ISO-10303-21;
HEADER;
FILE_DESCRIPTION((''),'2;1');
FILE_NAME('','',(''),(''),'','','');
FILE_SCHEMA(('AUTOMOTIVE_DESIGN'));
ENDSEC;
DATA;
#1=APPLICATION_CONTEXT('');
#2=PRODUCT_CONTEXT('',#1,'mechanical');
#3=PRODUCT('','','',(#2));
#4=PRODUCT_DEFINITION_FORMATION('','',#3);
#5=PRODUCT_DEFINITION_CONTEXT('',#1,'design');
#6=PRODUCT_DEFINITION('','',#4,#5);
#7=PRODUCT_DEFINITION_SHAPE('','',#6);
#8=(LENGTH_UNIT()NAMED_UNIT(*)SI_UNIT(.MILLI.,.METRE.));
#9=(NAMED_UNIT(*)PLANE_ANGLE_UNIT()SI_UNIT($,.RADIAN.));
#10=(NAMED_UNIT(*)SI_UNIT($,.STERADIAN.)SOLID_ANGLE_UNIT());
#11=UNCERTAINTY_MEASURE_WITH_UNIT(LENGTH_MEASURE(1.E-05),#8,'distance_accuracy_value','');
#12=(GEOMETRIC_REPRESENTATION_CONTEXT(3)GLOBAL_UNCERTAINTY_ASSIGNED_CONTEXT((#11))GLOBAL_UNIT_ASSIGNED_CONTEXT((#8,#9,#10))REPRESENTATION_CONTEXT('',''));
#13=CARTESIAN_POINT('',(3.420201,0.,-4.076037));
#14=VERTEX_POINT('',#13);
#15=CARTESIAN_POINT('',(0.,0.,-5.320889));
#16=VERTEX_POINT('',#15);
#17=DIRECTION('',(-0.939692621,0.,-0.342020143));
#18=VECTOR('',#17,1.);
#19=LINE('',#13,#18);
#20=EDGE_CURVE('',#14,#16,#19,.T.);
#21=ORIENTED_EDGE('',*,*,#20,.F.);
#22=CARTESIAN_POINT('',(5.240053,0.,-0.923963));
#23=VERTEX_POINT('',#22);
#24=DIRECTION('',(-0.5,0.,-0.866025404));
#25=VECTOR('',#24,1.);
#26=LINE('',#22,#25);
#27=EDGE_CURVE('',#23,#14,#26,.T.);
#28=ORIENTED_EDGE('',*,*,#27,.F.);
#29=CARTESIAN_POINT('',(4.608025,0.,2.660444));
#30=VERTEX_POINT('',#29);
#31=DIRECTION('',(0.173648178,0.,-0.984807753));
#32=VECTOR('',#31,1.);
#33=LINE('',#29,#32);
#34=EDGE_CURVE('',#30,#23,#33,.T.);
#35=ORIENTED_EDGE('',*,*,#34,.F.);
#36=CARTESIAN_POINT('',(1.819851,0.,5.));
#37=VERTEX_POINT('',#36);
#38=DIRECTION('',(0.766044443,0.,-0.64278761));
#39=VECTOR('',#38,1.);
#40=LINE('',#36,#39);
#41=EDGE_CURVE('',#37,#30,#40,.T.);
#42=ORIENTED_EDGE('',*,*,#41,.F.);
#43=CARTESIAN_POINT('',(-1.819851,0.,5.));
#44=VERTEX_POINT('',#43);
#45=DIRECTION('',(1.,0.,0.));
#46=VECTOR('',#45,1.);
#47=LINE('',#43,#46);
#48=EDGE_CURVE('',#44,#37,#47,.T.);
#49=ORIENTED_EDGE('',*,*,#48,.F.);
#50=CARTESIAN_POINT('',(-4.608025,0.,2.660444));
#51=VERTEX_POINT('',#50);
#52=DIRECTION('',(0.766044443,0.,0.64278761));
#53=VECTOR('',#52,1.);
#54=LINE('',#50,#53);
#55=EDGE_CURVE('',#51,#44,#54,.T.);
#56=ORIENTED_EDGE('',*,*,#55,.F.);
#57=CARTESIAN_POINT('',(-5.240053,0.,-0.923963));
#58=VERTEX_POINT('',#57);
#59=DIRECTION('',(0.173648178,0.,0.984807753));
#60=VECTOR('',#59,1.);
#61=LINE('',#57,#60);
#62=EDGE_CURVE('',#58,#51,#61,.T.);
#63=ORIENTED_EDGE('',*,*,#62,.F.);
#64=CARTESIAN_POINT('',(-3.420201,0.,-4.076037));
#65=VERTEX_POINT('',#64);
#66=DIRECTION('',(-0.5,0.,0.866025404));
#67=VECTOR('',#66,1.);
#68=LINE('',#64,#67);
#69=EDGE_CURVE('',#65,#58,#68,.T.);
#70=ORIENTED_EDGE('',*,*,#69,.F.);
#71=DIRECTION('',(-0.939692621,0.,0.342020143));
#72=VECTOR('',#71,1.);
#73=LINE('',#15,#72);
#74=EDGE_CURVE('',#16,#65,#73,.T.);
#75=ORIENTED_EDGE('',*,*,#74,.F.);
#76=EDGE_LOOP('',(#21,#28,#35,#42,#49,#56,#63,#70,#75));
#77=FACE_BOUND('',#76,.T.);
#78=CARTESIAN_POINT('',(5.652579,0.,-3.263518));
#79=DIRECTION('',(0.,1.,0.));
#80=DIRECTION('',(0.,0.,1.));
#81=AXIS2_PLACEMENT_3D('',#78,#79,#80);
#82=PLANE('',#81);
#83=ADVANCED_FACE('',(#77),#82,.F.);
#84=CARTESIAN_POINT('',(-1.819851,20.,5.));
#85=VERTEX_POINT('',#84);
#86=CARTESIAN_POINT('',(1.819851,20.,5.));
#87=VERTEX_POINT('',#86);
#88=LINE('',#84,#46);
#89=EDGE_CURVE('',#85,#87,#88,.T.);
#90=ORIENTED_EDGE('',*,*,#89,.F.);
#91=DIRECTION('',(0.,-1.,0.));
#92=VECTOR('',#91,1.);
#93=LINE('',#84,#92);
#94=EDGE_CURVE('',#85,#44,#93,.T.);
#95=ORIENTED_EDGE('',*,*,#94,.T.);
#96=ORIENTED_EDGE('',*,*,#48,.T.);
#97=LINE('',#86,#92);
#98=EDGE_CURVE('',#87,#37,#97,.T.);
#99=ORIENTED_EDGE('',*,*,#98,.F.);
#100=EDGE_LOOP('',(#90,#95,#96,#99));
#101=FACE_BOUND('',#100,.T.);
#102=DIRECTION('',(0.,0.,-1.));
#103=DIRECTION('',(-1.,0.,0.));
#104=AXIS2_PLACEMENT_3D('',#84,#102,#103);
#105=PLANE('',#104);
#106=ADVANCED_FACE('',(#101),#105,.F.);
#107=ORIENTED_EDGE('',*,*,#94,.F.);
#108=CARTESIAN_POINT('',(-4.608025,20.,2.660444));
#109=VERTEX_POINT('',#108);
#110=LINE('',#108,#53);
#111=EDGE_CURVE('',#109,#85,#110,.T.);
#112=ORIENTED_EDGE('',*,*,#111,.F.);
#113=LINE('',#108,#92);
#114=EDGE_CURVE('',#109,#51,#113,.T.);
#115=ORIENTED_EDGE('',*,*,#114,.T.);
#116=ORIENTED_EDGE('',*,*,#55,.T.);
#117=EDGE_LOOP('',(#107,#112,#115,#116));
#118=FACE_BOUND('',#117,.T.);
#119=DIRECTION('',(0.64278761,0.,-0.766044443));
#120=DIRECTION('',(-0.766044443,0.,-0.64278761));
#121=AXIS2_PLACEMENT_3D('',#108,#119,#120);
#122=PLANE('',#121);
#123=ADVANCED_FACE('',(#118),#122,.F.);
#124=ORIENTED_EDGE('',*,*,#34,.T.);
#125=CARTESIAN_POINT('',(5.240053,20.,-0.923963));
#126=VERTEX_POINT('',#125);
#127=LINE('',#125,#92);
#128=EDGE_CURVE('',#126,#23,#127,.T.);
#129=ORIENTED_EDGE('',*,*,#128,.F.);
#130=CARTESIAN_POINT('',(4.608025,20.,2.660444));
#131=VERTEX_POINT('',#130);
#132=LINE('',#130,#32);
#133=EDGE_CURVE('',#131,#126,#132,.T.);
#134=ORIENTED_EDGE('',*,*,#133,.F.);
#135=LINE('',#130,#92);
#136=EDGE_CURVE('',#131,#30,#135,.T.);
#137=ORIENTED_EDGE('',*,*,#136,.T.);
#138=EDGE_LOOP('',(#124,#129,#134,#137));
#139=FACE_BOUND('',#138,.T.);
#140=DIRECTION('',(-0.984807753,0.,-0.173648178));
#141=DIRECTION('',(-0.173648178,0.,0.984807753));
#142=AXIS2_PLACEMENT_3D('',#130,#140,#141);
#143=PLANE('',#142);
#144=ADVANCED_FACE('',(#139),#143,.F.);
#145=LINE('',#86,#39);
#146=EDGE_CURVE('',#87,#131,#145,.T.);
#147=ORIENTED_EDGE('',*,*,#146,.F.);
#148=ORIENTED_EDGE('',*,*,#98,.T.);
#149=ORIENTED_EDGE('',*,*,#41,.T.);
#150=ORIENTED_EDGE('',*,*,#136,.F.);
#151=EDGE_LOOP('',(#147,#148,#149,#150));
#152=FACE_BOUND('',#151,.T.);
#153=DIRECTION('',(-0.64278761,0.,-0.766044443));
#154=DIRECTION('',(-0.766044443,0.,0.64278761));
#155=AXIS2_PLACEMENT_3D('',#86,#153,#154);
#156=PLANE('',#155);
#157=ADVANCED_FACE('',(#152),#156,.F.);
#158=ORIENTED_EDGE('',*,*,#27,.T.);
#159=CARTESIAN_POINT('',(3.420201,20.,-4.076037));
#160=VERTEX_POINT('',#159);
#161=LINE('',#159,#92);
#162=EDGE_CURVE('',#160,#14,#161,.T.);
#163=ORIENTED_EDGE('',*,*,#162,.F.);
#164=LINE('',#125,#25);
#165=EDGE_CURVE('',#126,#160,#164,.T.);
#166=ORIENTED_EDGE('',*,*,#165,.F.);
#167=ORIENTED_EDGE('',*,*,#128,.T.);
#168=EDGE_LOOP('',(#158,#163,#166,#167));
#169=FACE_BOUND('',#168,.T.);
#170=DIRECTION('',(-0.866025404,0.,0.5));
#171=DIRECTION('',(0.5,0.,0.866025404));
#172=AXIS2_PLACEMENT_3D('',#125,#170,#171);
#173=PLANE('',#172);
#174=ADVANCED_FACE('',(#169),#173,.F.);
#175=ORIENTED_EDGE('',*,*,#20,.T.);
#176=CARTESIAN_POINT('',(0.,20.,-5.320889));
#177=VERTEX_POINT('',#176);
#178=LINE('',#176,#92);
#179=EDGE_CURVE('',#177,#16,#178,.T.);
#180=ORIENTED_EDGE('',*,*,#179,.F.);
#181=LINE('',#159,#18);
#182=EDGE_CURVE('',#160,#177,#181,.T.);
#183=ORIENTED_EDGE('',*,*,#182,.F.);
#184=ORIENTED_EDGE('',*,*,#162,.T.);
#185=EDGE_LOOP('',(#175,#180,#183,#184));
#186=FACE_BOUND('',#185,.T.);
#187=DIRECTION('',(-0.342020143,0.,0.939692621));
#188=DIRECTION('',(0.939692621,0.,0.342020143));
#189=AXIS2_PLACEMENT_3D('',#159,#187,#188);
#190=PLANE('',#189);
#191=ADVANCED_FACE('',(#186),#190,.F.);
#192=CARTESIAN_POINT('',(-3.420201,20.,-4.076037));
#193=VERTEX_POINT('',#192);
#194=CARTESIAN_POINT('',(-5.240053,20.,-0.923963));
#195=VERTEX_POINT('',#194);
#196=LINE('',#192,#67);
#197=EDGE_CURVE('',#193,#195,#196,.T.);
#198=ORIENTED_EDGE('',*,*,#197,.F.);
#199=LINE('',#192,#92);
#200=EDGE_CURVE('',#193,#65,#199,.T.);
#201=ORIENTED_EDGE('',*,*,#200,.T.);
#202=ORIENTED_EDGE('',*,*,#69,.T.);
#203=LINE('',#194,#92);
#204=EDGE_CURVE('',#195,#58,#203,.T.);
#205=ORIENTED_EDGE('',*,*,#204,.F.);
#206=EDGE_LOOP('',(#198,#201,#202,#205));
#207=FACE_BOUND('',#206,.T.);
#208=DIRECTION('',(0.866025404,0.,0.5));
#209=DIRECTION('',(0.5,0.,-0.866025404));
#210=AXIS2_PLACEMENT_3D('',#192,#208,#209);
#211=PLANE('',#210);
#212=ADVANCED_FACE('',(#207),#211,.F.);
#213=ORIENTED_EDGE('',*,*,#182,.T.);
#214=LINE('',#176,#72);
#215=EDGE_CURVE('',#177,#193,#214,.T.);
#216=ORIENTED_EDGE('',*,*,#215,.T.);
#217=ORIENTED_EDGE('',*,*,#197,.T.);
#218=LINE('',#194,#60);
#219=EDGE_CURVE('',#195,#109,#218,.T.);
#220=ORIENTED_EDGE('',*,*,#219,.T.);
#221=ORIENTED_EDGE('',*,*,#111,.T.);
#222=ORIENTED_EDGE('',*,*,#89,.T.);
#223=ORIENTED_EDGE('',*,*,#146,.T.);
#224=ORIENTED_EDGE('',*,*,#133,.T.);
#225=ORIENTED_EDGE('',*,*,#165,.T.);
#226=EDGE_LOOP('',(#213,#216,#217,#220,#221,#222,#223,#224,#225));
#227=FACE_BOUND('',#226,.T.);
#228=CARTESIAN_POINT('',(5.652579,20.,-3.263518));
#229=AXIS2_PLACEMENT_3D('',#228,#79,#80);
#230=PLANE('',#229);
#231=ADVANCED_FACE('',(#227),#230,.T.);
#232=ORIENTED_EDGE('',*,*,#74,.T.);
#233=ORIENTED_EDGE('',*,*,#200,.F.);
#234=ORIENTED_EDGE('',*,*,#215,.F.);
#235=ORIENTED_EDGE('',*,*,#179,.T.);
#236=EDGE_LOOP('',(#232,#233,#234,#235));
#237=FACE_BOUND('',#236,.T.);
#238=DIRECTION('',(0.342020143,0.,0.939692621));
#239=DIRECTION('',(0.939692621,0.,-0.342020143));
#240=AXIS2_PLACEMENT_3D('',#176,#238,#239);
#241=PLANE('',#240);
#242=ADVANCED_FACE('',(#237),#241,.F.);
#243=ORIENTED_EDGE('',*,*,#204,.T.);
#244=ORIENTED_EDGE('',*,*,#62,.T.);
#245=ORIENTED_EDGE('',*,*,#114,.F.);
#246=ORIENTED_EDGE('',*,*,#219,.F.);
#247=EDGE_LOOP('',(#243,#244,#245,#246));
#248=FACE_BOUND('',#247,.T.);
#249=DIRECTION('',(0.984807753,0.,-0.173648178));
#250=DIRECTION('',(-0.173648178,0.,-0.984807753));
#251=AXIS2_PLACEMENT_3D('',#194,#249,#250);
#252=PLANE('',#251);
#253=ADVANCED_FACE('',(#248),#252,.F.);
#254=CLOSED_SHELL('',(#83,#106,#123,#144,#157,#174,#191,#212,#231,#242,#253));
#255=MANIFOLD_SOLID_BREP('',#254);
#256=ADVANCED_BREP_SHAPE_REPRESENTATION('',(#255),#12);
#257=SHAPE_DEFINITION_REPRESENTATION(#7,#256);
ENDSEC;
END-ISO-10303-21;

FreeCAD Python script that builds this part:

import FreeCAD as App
import Part
import Sketcher
Q = App.Units.Quantity


def add_polygon(sketch, points):
    """Adds a closed chain of lines whose ends are joined by coincident constraints."""
    first, n = sketch.GeometryCount, len(points)
    for a, b in zip(points, points[1:] + points[:1]):
        sketch.addGeometry(Part.LineSegment(App.Vector(*a, 0), App.Vector(*b, 0)), False)
    for i in range(n):
        sketch.addConstraint(Sketcher.Constraint("Coincident", first + i, 2, first + (i + 1) % n, 1))

doc = App.newDocument("Part")
body = doc.addObject("PartDesign::Body", "Body")

# Sketch on XZ plane
sketch1 = body.newObject("Sketcher::SketchObject", "Sketch")
sketch1.AttachmentSupport = (doc.getObject("XZ_Plane"), [""])
sketch1.MapMode = "FlatFace"
add_polygon(sketch1, [(5.2, -0.9), (3.4, -4.1), (0, -5.3), (-3.4, -4.1), (-5.2, -0.9), (-4.6, 2.7), (-1.8, 5), (1.8, 5), (4.6, 2.7)])  # lines 0-8
sketch1.addConstraint([
    Sketcher.Constraint("Horizontal", 6),
    Sketcher.Constraint("Symmetric", 0, 2, 2, 2, -2),
    Sketcher.Constraint("Symmetric", 4, 2, 7, 2, -2),
    Sketcher.Constraint("Symmetric", 3, 2, 8, 2, -2),
    Sketcher.Constraint("PointOnObject", 1, 2, -2),
    Sketcher.Constraint("Equal", 0, 1),
    Sketcher.Constraint("Equal", 3, 4),
    Sketcher.Constraint("Equal", 4, 5),
    Sketcher.Constraint("Equal", 5, 7),
    Sketcher.Constraint("Angle", 0, Q("-120 deg")),
    Sketcher.Constraint("Angle", 1, Q("-160 deg")),
    Sketcher.Constraint("Angle", 4, Q("80 deg")),
    Sketcher.Constraint("Angle", 5, Q("40 deg")),
    Sketcher.Constraint("DistanceY", -1, 1, 5, 2, 5.0),
    Sketcher.Constraint("DistanceX", -1, 1, 0, 2, 3.420201),
])
pad1 = body.newObject("PartDesign::Pad", "Pad")
pad1.Profile = sketch1
pad1.Length = 20
pad1.Reversed = True

doc.recompute()
